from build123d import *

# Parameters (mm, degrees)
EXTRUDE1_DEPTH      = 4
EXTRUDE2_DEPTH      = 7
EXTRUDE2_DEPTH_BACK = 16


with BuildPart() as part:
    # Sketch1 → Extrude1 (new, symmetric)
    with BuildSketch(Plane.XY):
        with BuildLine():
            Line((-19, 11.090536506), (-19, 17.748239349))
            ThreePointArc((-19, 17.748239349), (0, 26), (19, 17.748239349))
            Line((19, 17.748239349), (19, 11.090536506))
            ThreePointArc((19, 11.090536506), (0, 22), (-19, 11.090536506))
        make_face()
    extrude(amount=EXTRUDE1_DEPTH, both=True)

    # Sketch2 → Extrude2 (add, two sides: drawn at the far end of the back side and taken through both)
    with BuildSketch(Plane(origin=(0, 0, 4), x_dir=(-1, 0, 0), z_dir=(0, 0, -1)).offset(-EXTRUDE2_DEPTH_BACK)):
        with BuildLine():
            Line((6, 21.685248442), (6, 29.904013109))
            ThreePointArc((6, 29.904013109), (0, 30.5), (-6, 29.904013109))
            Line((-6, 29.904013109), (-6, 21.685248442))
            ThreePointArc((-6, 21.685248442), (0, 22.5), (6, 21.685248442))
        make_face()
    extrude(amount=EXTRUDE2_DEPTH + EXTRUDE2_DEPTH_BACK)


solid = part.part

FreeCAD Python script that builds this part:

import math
import FreeCAD as App
import Part
import Sketcher
from FreeCAD import Vector
Q = App.Units.Quantity

doc = App.newDocument("Part")
body = doc.addObject("PartDesign::Body", "Body")

# Sketch on XY plane
sketch1 = doc.addObject("Sketcher::SketchObject", "Sketch")
body.addObject(sketch1)
sketch1.AttachmentSupport = (doc.XY_Plane, [""])
sketch1.MapMode = "FlatFace"
sketch1.addGeometry([
    Part.LineSegment(Vector(-19, 18, 0), Vector(-19, 11, 0)),
    Part.ArcOfCircle(Part.Circle(Vector(0, 0, 0), Vector(0, 0, 1), 22), math.radians(30), math.radians(150)),
    Part.LineSegment(Vector(19, 11, 0), Vector(19, 18, 0)),
    Part.ArcOfCircle(Part.Circle(Vector(0, 0, 0), Vector(0, 0, 1), 26), math.radians(43), math.radians(137)),
], False)
sketch1.addConstraint([
    Sketcher.Constraint("Coincident", 0, 2, 1, 2),
    Sketcher.Constraint("Coincident", 1, 1, 2, 1),
    Sketcher.Constraint("Coincident", 2, 2, 3, 1),
    Sketcher.Constraint("Coincident", 3, 2, 0, 1),
    Sketcher.Constraint("Vertical", 0),
    Sketcher.Constraint("Vertical", 2),
    Sketcher.Constraint("Coincident", 1, 3, -1, 1),
    Sketcher.Constraint("Coincident", 3, 3, -1, 1),
    Sketcher.Constraint("Horizontal", 0, 2, 1, 1),
    Sketcher.Constraint("Radius", 1, Q("22 mm")),
    Sketcher.Constraint("Radius", 3, Q("26 mm")),
    Sketcher.Constraint("DistanceX", 0, 2, -1, 1, Q("19 mm")),
])
pad1 = doc.addObject("PartDesign::Pad", "Pad")
body.addObject(pad1)
pad1.Profile = sketch1
pad1.Length = 8
pad1.Midplane = True

# Sketch on XY plane
sketch2 = doc.addObject("Sketcher::SketchObject", "Sketch001")
body.addObject(sketch2)
sketch2.AttachmentSupport = (doc.XY_Plane, [""])
sketch2.MapMode = "FlatFace"
sketch2.AttachmentOffset = App.Placement(Vector(0, 0, 4), App.Rotation())
sketch2.addGeometry([
    Part.LineSegment(Vector(-6, 22, 0), Vector(-6, 30, 0)),
    Part.ArcOfCircle(Part.Circle(Vector(0, 0, 0), Vector(0, 0, 1), 31), math.radians(79), math.radians(101)),
    Part.LineSegment(Vector(6, 30, 0), Vector(6, 22, 0)),
    Part.ArcOfCircle(Part.Circle(Vector(0, 0, 0), Vector(0, 0, 1), 22), math.radians(75), math.radians(105)),
], False)
sketch2.addConstraint([
    Sketcher.Constraint("Coincident", 0, 2, 1, 2),
    Sketcher.Constraint("Coincident", 1, 1, 2, 1),
    Sketcher.Constraint("Coincident", 2, 2, 3, 1),
    Sketcher.Constraint("Coincident", 3, 2, 0, 1),
    Sketcher.Constraint("Vertical", 0),
    Sketcher.Constraint("Vertical", 2),
    Sketcher.Constraint("Coincident", 1, 3, -1, 1),
    Sketcher.Constraint("Coincident", 3, 3, -1, 1),
    Sketcher.Constraint("Horizontal", 0, 2, 1, 1),
    Sketcher.Constraint("Radius", 1, Q("30.5 mm")),
    Sketcher.Constraint("Radius", 3, Q("22.5 mm")),
    Sketcher.Constraint("DistanceX", 0, 2, -1, 1, Q("6 mm")),
])
pad2 = doc.addObject("PartDesign::Pad", "Pad001")
body.addObject(pad2)
pad2.Profile = sketch2
pad2.Type = "TwoLengths"
pad2.Length = 7
pad2.Length2 = 16
pad2.Reversed = True

doc.recompute()
